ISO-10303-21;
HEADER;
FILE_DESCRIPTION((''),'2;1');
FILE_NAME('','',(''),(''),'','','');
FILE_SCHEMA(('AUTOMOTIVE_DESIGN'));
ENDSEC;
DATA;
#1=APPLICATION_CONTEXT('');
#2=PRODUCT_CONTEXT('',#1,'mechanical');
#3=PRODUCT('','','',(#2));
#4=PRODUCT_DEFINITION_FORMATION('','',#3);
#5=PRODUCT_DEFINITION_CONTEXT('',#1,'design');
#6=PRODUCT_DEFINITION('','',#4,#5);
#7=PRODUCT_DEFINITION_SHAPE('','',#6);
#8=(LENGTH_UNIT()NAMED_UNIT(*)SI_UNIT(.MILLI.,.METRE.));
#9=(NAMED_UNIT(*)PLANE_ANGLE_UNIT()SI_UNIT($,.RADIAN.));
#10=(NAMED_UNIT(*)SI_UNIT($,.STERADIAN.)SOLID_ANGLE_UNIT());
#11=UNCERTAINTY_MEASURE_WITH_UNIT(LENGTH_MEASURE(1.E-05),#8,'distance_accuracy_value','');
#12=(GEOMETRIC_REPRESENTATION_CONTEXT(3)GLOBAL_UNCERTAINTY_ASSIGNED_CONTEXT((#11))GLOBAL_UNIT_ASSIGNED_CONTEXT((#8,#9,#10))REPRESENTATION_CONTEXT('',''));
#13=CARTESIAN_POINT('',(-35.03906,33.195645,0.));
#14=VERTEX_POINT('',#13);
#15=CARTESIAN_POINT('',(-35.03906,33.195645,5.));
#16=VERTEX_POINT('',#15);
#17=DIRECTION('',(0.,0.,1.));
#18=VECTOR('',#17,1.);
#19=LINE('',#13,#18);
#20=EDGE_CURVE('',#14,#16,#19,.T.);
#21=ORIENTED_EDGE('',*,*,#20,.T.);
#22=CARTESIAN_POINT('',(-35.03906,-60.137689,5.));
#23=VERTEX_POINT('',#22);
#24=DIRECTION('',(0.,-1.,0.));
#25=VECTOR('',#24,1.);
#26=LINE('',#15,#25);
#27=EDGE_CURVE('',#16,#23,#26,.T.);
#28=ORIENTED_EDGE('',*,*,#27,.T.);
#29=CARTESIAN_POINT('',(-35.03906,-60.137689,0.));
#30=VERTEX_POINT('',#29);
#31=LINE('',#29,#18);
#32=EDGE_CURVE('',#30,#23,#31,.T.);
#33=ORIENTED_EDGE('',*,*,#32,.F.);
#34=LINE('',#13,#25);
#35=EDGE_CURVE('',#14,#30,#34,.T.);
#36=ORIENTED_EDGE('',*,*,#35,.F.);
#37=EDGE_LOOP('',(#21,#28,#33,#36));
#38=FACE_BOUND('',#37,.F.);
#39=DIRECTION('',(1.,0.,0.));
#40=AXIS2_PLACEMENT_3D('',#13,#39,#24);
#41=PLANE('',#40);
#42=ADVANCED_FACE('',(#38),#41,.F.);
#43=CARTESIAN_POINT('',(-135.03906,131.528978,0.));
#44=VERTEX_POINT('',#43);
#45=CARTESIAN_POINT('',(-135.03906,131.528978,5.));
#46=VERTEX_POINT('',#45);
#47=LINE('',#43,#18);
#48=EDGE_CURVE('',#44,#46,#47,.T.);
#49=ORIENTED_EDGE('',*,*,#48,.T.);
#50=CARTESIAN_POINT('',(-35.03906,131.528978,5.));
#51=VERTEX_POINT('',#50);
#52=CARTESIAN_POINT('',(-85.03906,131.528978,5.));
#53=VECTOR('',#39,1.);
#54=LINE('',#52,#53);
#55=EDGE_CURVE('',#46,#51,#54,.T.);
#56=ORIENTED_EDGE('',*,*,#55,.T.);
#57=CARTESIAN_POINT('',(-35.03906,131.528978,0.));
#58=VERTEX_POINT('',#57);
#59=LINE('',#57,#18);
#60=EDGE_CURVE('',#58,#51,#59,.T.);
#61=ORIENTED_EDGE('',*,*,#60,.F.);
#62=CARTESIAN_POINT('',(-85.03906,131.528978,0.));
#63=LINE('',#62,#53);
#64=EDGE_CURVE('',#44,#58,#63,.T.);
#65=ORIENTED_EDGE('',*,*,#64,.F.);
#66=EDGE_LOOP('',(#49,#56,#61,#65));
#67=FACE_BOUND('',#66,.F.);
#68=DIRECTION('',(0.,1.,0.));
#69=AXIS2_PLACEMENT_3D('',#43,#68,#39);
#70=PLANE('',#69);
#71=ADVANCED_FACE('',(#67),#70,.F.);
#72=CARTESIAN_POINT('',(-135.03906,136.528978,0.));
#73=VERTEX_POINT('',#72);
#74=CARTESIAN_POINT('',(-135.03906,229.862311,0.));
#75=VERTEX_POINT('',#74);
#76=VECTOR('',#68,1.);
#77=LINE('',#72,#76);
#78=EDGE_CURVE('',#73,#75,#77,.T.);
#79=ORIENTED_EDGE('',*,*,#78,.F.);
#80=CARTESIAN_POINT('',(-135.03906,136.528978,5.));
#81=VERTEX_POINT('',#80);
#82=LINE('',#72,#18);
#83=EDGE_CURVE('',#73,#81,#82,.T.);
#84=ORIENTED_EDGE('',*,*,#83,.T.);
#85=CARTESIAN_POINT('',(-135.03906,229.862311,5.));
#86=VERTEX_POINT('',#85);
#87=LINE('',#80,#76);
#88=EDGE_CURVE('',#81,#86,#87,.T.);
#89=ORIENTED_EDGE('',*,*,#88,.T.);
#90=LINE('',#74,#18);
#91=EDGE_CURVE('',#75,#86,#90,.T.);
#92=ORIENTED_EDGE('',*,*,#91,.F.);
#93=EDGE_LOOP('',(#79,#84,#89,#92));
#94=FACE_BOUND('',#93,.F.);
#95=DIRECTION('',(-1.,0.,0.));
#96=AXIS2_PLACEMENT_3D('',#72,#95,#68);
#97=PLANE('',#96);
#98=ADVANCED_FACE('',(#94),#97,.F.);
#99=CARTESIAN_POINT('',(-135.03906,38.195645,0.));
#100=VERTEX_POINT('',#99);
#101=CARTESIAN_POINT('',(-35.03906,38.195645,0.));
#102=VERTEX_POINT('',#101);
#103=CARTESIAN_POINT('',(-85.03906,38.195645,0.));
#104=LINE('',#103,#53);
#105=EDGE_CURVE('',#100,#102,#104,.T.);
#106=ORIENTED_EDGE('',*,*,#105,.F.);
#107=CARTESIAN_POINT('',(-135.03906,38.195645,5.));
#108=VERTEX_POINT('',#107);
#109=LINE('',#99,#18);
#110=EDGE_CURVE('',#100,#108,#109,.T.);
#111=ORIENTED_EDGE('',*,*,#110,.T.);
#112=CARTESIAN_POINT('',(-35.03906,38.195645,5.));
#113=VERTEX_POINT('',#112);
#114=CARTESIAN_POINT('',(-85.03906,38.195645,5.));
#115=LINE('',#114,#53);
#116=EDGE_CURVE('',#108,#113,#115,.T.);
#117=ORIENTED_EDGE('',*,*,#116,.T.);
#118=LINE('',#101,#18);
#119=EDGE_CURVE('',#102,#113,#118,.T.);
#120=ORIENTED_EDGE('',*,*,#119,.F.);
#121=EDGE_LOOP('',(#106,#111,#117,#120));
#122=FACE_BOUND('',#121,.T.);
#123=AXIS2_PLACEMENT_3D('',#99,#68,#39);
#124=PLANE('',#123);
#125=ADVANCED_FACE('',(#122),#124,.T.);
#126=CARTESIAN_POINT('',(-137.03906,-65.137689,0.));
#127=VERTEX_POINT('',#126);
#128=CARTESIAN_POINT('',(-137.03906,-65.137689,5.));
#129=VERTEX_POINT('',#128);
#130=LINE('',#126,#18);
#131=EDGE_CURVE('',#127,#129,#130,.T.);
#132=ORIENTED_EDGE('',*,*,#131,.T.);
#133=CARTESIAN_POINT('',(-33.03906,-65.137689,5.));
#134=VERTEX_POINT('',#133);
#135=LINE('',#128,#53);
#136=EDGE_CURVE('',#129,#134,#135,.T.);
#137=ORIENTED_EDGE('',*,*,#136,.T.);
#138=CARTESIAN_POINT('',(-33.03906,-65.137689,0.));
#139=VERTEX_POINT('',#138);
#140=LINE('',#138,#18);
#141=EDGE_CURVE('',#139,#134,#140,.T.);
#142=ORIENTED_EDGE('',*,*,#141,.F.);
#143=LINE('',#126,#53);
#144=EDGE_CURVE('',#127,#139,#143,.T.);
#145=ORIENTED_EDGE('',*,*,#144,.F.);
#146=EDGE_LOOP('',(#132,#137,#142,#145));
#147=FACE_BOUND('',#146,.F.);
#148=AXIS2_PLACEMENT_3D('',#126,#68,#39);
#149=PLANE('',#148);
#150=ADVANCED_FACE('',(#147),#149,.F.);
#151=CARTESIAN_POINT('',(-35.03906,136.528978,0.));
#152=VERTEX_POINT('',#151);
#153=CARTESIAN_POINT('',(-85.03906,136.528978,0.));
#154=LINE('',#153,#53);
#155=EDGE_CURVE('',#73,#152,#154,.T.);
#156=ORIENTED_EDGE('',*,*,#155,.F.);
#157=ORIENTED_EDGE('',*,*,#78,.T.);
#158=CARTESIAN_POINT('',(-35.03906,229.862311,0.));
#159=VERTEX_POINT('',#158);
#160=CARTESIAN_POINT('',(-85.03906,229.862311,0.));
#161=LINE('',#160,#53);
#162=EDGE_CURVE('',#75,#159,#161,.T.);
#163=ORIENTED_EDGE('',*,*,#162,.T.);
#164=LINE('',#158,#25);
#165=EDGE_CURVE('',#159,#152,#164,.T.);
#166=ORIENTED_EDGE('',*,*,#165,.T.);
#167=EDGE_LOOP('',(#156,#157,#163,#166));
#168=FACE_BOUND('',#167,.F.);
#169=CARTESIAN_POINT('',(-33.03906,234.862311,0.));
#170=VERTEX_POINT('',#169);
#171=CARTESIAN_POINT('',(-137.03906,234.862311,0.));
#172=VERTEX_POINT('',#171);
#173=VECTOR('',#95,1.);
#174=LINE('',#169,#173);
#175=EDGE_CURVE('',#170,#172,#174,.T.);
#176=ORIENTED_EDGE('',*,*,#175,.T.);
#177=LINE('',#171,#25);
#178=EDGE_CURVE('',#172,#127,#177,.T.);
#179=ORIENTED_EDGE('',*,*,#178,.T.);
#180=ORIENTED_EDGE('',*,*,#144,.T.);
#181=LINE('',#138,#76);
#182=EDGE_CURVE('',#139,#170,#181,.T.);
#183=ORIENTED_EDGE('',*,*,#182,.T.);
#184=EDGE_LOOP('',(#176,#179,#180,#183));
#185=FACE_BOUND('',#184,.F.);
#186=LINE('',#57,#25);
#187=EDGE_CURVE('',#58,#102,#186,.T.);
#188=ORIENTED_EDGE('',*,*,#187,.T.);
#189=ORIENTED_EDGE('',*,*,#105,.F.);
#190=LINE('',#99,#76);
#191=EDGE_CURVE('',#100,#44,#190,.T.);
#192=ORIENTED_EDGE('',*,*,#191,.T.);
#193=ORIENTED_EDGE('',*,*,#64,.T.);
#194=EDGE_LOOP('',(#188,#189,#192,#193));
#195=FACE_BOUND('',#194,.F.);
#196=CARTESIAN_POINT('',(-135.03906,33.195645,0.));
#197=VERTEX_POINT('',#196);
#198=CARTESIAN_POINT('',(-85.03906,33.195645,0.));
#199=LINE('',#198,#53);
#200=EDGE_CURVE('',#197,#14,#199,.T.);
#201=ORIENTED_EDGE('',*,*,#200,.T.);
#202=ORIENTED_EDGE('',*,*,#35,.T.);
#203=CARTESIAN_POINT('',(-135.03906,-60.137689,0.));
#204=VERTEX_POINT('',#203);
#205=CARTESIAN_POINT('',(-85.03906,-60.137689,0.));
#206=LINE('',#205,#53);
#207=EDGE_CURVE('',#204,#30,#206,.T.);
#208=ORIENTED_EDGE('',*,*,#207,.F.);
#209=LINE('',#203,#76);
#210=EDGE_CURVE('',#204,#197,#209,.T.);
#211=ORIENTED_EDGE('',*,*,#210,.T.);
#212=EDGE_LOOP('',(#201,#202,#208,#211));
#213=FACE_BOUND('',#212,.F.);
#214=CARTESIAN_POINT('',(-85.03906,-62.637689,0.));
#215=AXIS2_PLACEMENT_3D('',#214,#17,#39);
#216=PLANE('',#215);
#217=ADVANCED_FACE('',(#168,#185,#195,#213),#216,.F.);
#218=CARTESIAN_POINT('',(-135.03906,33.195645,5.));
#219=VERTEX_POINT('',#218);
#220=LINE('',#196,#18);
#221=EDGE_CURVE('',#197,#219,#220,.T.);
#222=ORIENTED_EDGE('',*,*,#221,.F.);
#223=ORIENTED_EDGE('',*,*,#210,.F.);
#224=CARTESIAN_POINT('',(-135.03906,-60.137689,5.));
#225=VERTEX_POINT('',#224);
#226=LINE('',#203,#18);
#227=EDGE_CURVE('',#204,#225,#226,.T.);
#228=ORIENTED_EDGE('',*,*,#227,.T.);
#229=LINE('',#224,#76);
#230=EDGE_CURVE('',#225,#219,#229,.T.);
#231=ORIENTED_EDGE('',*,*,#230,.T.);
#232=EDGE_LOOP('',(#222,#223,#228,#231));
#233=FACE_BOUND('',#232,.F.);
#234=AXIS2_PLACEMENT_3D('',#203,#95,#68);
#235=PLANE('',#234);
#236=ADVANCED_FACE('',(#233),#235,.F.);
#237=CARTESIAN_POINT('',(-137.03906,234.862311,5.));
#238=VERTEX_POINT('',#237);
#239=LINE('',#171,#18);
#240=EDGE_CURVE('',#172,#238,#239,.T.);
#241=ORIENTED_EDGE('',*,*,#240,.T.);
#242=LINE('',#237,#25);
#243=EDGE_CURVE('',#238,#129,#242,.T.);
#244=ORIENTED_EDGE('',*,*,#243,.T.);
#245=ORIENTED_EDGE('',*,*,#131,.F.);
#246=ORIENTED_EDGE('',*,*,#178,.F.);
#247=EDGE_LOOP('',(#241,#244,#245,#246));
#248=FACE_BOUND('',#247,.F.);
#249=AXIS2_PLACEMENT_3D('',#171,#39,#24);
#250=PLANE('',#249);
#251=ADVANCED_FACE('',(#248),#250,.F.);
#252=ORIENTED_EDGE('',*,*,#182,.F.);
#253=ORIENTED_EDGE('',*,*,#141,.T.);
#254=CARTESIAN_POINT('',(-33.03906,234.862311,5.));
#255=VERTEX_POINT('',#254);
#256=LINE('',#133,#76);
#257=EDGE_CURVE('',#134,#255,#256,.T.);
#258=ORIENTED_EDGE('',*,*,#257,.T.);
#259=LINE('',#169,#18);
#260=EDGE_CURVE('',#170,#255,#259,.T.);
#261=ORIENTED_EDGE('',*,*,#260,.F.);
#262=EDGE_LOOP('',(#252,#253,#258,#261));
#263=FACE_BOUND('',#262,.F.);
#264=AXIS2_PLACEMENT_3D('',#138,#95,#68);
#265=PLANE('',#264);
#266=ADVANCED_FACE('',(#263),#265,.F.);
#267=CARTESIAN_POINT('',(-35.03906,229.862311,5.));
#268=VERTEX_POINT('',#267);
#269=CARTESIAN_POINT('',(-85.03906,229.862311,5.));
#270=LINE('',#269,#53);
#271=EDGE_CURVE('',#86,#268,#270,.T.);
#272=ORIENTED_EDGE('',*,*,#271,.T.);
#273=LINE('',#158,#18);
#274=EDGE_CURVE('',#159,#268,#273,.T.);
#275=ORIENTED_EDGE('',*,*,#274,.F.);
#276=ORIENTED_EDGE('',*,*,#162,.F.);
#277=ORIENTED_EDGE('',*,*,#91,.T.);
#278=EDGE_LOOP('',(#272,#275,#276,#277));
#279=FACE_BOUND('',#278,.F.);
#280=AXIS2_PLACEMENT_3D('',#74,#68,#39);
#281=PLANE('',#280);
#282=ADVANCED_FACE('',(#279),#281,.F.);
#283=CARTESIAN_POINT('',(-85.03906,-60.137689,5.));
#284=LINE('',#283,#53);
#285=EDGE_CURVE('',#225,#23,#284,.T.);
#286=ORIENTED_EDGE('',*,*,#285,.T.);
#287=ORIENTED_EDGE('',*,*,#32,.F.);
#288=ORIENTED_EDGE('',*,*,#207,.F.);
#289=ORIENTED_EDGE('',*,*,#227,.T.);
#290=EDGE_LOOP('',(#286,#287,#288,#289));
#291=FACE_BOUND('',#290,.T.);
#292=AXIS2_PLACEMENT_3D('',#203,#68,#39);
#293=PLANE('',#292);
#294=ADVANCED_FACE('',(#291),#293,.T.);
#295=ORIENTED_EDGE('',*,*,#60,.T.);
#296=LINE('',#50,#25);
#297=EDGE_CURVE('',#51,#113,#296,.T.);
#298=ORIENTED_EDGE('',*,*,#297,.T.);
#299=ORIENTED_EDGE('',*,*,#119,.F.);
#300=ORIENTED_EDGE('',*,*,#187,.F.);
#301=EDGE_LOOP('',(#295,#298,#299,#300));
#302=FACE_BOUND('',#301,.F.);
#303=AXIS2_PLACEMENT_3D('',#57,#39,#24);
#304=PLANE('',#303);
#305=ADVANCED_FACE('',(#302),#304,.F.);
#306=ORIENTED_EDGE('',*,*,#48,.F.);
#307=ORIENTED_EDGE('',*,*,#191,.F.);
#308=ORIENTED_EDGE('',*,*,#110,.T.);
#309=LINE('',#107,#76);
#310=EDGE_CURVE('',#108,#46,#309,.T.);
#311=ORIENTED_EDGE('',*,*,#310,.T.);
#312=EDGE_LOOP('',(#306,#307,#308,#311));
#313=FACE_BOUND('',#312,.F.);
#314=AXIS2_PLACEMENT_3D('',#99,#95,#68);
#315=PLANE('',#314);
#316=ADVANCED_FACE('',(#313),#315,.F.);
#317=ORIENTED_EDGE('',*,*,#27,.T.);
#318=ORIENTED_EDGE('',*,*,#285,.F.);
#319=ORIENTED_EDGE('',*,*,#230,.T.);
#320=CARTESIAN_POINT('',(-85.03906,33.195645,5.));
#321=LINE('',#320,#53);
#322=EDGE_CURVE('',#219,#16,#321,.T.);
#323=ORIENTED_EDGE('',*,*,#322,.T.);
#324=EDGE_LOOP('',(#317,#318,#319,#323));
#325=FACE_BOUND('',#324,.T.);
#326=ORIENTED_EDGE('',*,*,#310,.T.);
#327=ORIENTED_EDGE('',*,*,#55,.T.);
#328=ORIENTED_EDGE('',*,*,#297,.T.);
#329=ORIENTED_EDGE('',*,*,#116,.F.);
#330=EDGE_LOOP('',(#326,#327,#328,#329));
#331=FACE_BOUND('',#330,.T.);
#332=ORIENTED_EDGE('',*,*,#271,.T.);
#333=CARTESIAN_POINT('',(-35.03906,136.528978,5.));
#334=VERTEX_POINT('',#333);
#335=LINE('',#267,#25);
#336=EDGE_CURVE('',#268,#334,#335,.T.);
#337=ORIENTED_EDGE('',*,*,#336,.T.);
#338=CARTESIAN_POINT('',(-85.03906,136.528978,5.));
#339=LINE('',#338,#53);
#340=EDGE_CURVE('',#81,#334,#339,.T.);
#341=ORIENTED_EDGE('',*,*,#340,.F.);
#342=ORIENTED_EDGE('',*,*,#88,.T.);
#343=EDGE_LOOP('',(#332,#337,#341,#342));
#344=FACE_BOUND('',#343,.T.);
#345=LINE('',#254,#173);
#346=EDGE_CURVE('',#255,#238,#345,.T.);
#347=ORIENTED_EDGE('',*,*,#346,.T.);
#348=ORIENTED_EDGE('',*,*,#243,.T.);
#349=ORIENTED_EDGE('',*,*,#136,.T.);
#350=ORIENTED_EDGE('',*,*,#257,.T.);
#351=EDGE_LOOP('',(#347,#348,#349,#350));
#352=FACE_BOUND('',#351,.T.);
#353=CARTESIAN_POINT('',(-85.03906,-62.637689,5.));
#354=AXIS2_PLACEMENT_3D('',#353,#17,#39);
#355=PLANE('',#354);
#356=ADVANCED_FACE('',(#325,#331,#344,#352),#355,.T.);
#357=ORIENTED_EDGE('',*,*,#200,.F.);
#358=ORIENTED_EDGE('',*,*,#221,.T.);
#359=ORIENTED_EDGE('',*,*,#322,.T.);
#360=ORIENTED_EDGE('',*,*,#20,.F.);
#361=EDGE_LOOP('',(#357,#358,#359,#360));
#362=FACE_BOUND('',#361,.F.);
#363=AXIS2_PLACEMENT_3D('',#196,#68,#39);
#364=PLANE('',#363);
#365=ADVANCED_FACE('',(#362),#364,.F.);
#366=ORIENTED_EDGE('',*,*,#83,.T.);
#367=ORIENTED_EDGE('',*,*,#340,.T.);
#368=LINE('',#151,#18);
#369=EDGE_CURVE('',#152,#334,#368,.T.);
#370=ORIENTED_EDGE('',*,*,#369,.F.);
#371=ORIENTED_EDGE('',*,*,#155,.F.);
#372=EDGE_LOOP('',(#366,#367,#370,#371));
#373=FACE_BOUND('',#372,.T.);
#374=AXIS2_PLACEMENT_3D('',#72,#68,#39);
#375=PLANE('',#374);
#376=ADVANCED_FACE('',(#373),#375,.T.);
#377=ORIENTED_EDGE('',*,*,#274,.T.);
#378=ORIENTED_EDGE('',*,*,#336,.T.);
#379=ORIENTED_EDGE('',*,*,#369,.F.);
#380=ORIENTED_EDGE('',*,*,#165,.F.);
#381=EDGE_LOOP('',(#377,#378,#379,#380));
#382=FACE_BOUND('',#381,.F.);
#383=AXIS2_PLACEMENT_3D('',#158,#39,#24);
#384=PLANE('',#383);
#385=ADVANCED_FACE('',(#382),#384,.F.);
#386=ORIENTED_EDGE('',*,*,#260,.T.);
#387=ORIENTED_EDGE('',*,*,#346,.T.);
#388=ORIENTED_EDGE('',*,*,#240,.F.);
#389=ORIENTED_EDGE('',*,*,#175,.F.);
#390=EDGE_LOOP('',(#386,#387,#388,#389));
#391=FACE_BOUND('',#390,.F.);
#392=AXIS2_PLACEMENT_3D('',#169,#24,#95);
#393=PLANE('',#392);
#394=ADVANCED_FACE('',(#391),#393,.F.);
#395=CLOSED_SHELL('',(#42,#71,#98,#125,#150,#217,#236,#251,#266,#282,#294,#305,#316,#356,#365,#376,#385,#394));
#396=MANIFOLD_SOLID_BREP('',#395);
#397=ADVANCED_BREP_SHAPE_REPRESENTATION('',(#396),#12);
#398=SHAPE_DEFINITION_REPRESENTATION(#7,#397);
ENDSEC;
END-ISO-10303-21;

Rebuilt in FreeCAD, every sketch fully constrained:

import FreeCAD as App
import Part
import Sketcher
from FreeCAD import Vector
Q = App.Units.Quantity


def add_polygon(sketch, points):
    """Adds a closed chain of lines whose ends are joined by coincident constraints."""
    first, n = sketch.GeometryCount, len(points)
    for a, b in zip(points, points[1:] + points[:1]):
        sketch.addGeometry(Part.LineSegment(App.Vector(*a, 0), App.Vector(*b, 0)), False)
    for i in range(n):
        sketch.addConstraint(Sketcher.Constraint("Coincident", first + i, 2, first + (i + 1) % n, 1))

doc = App.newDocument("Part")
body = doc.addObject("PartDesign::Body", "Body")

# Sketch on XY plane
sketch1 = doc.addObject("Sketcher::SketchObject", "Sketch")
body.addObject(sketch1)
sketch1.AttachmentSupport = (doc.XY_Plane, [""])
sketch1.MapMode = "FlatFace"
add_polygon(sketch1, [(-137, 235), (-137, -65), (-33, -65), (-33, 235)])  # lines 0-3
add_polygon(sketch1, [(-35, -60), (-135, -60), (-135, 33), (-35, 33)])  # lines 4-7
add_polygon(sketch1, [(-35, 38), (-135, 38), (-135, 132), (-35, 132)])  # lines 8-11
add_polygon(sketch1, [(-35, 137), (-135, 137), (-135, 230), (-35, 230)])  # lines 12-15
sketch1.addConstraint([
    Sketcher.Constraint("Vertical", 0),
    Sketcher.Constraint("Horizontal", 1),
    Sketcher.Constraint("Vertical", 2),
    Sketcher.Constraint("Horizontal", 3),
    Sketcher.Constraint("Horizontal", 4),
    Sketcher.Constraint("Vertical", 5),
    Sketcher.Constraint("Horizontal", 6),
    Sketcher.Constraint("Vertical", 7),
    Sketcher.Constraint("Horizontal", 8),
    Sketcher.Constraint("Vertical", 9),
    Sketcher.Constraint("Horizontal", 10),
    Sketcher.Constraint("Vertical", 11),
    Sketcher.Constraint("Horizontal", 12),
    Sketcher.Constraint("Vertical", 13),
    Sketcher.Constraint("Horizontal", 14),
    Sketcher.Constraint("Vertical", 15),
    Sketcher.Constraint("Vertical", 5, 2, 8, 2),
    Sketcher.Constraint("Vertical", 7, 2, 10, 2),
    Sketcher.Constraint("Vertical", 9, 2, 12, 2),
    Sketcher.Constraint("Vertical", 11, 2, 14, 2),
    Sketcher.Constraint("Equal", 7, 9),
    Sketcher.Constraint("Equal", 11, 13),
    Sketcher.Constraint("DistanceX", 1, 1, 1, 2, Q("104 mm")),
    Sketcher.Constraint("DistanceX", 4, 2, 4, 1, Q("100 mm")),
    Sketcher.Constraint("DistanceY", 0, 2, 0, 1, Q("300 mm")),
    Sketcher.Constraint("DistanceX", 0, 2, 4, 2, Q("2 mm")),
    Sketcher.Constraint("DistanceY", 0, 2, 4, 2, Q("5 mm")),
    Sketcher.Constraint("DistanceY", 5, 2, 8, 2, Q("5 mm")),
    Sketcher.Constraint("DistanceY", 9, 2, 12, 2, Q("5 mm")),
    Sketcher.Constraint("DistanceY", 13, 2, 3, 2, Q("5 mm")),
    Sketcher.Constraint("DistanceX", 0, 2, -1, 1, Q("137.03906 mm")),
    Sketcher.Constraint("DistanceY", 0, 2, -1, 1, Q("65.137689 mm")),
])
pad1 = doc.addObject("PartDesign::Pad", "Pad")
body.addObject(pad1)
pad1.Profile = sketch1
pad1.Length = 5

doc.recompute()
